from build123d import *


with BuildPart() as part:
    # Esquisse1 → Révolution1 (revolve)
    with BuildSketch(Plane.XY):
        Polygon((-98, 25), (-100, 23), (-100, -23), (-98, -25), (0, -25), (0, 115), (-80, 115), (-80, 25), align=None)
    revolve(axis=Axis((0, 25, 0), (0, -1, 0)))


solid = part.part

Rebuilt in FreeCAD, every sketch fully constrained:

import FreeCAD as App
import Part
import Sketcher
Q = App.Units.Quantity


def add_polygon(sketch, points):
    """Adds a closed chain of lines whose ends are joined by coincident constraints."""
    first, n = sketch.GeometryCount, len(points)
    for a, b in zip(points, points[1:] + points[:1]):
        sketch.addGeometry(Part.LineSegment(App.Vector(*a, 0), App.Vector(*b, 0)), False)
    for i in range(n):
        sketch.addConstraint(Sketcher.Constraint("Coincident", first + i, 2, first + (i + 1) % n, 1))

doc = App.newDocument("Part")
body = doc.addObject("PartDesign::Body", "Body")

sketch1 = body.newObject("Sketcher::SketchObject", "Sketch")
sketch1.AttachmentSupport = (doc.getObject("XY_Plane"), [""])
sketch1.MapMode = "FlatFace"
add_polygon(sketch1, [(-98, 25), (-100, 23), (-100, -23), (-98, -25), (0, -25), (0, 115), (-80, 115), (-80, 25)])
sketch1.addConstraint([
    Sketcher.Constraint("Vertical", 1),
    Sketcher.Constraint("Horizontal", 3),
    Sketcher.Constraint("Vertical", 4),
    Sketcher.Constraint("Horizontal", 5),
    Sketcher.Constraint("Vertical", 6),
    Sketcher.Constraint("Horizontal", 7),
    Sketcher.Constraint("Symmetric", 2, 2, 7, 2, -1),
    Sketcher.Constraint("PointOnObject", 3, 2, -2),
    Sketcher.Constraint("Perpendicular", 0, 2),
    Sketcher.Constraint("Equal", 0, 2),
    Sketcher.Constraint("DistanceX", 3, 1, 3, 2, Q("98 mm")),
    Sketcher.Constraint("DistanceX", 5, 2, 5, 1, Q("80 mm")),
    Sketcher.Constraint("DistanceY", 1, 2, 1, 1, Q("46 mm")),
    Sketcher.Constraint("DistanceY", 4, 1, 4, 2, Q("140 mm")),
    Sketcher.Constraint("DistanceY", 6, 2, 6, 1, Q("90 mm")),
])
revolution = body.newObject("PartDesign::Revolution", "Revolution")
revolution.Profile = sketch1
revolution.ReferenceAxis = (sketch1, ["V_Axis"])
revolution.Angle = 360

doc.recompute()
